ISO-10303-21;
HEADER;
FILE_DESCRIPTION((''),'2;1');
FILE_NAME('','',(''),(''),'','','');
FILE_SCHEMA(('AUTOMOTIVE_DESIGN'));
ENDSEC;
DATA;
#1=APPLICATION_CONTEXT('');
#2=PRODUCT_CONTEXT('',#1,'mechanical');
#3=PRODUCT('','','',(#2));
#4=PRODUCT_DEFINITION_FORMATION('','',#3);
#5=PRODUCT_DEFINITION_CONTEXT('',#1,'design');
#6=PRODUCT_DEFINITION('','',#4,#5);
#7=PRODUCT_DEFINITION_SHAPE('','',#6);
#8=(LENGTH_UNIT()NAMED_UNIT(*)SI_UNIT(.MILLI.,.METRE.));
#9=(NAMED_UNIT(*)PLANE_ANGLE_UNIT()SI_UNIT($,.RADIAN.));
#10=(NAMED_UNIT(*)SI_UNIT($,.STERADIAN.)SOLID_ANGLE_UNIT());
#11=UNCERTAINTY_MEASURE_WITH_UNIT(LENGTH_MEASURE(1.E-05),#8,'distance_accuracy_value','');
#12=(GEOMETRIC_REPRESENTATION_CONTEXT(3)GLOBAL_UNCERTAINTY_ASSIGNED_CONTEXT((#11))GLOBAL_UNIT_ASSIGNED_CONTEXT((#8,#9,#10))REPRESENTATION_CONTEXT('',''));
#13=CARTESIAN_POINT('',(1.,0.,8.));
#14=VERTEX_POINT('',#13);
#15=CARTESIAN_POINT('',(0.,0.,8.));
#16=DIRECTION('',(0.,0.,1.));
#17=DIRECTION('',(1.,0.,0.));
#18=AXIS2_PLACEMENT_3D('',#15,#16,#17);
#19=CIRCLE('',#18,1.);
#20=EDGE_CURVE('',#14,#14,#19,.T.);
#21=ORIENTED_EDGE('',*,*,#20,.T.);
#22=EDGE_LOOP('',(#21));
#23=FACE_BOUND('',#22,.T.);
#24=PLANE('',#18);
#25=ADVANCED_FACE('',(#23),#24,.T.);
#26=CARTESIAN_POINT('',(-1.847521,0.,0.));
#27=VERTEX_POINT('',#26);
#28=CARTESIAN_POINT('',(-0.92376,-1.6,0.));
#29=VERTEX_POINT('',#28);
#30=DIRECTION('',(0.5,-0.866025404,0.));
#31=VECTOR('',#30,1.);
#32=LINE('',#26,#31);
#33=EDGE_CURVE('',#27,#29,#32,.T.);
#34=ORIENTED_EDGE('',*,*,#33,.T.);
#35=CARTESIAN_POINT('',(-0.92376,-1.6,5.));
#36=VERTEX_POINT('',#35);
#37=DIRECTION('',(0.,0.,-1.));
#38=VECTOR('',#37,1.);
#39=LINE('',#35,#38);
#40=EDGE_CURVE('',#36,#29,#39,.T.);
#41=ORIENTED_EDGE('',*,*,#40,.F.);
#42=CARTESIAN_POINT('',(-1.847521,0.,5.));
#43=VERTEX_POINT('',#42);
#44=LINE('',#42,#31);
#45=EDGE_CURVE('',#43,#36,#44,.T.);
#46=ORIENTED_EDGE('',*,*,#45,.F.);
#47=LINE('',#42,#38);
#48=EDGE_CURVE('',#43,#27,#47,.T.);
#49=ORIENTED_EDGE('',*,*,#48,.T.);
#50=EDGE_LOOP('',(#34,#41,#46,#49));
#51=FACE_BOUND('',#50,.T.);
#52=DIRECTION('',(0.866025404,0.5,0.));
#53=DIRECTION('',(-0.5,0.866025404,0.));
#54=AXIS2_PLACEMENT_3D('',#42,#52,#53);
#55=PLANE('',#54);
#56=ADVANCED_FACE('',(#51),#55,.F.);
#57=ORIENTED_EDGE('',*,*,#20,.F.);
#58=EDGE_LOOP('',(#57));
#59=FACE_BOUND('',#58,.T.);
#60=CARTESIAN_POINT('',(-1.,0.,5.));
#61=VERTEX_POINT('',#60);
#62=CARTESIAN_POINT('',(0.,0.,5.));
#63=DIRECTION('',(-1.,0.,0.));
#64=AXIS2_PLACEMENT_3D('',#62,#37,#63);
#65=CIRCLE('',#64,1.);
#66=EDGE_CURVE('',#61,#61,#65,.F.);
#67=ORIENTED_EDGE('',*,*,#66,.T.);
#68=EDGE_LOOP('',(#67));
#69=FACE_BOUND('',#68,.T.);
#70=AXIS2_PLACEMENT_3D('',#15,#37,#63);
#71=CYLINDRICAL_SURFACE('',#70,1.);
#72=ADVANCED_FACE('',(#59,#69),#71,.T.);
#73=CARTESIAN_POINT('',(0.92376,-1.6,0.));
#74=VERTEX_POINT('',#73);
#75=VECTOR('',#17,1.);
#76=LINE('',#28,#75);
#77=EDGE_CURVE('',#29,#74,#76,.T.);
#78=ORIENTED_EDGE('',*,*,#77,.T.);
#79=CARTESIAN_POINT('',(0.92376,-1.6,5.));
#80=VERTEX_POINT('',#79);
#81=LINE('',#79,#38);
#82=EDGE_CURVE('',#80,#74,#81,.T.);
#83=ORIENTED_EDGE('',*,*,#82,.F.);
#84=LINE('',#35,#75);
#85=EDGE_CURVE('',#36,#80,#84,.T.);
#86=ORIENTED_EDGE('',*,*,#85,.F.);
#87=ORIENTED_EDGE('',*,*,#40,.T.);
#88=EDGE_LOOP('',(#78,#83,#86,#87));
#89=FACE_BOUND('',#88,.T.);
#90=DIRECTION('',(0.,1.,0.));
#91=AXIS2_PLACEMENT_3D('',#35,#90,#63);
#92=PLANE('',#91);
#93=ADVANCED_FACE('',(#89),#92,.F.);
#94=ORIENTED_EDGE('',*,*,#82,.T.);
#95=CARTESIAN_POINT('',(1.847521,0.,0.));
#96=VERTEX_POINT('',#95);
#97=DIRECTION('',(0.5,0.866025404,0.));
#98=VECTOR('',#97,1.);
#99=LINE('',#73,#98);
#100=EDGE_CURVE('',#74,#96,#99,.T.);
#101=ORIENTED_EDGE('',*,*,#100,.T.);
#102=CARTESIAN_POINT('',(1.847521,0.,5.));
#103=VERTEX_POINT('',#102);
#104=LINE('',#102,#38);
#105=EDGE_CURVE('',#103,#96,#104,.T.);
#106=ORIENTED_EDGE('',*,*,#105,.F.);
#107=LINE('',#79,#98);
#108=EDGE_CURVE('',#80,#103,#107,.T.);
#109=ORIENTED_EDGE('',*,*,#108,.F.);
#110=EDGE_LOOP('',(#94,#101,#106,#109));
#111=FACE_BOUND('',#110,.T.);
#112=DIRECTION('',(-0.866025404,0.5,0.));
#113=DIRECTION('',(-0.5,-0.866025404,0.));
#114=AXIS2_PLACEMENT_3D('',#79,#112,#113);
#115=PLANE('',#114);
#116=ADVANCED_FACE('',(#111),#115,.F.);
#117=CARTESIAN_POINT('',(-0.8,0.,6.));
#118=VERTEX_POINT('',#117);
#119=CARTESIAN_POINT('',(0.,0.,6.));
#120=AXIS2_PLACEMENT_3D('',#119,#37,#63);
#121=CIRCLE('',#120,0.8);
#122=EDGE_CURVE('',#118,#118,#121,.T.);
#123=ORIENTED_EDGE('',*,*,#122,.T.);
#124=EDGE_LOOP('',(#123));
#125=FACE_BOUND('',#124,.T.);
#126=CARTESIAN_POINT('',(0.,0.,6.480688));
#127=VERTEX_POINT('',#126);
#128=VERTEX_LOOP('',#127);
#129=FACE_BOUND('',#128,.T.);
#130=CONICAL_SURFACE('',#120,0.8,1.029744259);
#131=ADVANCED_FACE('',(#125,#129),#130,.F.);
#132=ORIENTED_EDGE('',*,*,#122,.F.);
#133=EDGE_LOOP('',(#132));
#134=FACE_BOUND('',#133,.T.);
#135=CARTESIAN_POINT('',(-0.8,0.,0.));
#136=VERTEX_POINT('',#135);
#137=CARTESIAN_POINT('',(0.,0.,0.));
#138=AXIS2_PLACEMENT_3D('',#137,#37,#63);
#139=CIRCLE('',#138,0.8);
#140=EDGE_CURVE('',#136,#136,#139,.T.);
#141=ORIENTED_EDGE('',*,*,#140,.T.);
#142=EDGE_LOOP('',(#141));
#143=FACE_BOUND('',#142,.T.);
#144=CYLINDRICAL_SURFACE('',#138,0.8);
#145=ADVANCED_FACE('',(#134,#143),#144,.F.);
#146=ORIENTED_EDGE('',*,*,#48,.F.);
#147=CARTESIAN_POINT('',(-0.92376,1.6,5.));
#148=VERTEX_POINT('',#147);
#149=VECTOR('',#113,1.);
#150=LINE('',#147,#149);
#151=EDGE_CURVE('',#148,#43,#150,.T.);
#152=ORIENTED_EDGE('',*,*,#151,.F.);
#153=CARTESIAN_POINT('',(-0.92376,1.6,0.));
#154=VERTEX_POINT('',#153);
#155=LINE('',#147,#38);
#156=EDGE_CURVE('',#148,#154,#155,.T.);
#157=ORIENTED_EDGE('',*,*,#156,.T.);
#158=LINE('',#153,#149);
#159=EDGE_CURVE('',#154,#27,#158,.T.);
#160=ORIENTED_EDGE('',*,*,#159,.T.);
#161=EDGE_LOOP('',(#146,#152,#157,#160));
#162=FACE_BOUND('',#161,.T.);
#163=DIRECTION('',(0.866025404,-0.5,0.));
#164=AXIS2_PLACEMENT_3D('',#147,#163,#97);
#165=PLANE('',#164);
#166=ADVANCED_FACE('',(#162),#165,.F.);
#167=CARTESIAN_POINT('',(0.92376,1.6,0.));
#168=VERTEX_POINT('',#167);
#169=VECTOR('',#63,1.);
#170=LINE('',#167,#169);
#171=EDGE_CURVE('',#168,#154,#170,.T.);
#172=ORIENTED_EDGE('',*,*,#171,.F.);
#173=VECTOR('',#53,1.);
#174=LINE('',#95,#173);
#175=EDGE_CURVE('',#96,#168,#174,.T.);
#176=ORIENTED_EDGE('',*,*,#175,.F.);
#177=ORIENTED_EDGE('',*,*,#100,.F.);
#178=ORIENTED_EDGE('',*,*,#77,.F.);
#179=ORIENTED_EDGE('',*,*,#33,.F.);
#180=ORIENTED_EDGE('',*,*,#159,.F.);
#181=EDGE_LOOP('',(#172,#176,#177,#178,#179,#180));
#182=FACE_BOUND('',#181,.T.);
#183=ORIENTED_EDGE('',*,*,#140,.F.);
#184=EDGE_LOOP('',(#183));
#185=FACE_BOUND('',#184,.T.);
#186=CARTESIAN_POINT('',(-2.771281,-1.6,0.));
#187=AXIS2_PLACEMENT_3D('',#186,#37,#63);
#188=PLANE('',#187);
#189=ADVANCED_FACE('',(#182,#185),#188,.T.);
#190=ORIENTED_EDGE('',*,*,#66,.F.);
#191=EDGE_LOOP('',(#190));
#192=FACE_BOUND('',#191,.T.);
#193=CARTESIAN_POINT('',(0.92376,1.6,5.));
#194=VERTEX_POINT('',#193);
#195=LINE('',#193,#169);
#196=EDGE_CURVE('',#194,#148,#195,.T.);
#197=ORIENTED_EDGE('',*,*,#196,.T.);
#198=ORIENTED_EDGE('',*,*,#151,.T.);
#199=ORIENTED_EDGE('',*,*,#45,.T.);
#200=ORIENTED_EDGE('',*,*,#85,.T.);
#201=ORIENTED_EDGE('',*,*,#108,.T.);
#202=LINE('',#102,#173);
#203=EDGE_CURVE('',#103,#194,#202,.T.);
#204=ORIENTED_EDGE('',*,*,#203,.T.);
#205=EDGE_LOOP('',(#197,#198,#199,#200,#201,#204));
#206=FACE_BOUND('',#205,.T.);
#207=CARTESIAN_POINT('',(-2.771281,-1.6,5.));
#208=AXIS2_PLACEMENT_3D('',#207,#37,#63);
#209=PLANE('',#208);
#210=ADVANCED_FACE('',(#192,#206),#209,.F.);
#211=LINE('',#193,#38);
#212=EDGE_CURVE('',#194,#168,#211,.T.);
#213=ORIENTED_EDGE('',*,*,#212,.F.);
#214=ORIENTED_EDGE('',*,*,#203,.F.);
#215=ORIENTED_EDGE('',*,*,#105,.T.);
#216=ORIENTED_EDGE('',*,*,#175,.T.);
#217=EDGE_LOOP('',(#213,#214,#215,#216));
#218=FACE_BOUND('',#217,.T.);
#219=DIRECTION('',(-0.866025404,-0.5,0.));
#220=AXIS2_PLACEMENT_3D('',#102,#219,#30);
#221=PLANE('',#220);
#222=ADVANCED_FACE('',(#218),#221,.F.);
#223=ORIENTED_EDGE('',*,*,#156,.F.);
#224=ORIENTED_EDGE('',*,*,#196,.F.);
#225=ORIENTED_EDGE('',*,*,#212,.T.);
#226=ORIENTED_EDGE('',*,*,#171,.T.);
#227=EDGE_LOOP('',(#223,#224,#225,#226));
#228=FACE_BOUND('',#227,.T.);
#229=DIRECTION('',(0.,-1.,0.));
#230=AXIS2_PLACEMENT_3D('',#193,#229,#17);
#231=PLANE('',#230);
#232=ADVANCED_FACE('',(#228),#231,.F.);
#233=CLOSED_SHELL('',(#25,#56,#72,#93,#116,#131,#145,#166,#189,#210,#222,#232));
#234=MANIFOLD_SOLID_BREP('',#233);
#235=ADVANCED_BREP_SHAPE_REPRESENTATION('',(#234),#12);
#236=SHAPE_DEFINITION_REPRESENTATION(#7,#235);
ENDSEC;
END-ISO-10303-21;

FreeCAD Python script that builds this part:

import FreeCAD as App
import Part
import Sketcher
Q = App.Units.Quantity


def add_polygon(sketch, points):
    """Adds a closed chain of lines whose ends are joined by coincident constraints."""
    first, n = sketch.GeometryCount, len(points)
    for a, b in zip(points, points[1:] + points[:1]):
        sketch.addGeometry(Part.LineSegment(App.Vector(*a, 0), App.Vector(*b, 0)), False)
    for i in range(n):
        sketch.addConstraint(Sketcher.Constraint("Coincident", first + i, 2, first + (i + 1) % n, 1))

doc = App.newDocument("Part")
body = doc.addObject("PartDesign::Body", "Body")

# Sketch on XY plane
sketch1 = body.newObject("Sketcher::SketchObject", "Sketch")
sketch1.AttachmentSupport = (doc.getObject("XY_Plane"), [""])
sketch1.MapMode = "FlatFace"
add_polygon(sketch1, [(0.9, -1.6), (1.8, 0), (0.9, 1.6), (-0.9, 1.6), (-1.8, 0), (-0.9, -1.6)])  # lines 0-5
sketch1.addConstraint(Sketcher.Constraint("Horizontal", 2))
sketch1.addConstraint(Sketcher.Constraint("Horizontal", 5))
sketch1.addConstraint(Sketcher.Constraint("Symmetric", 0, 2, 3, 2, -1, 1))
sketch1.addConstraint(Sketcher.Constraint("Symmetric", 1, 2, 4, 2, -1, 1))
sketch1.addConstraint(Sketcher.Constraint("PointOnObject", 0, 2, -1))
sketch1.addConstraint(Sketcher.Constraint("Parallel", 0, 3))
sketch1.addConstraint(Sketcher.Constraint("Vertical", 2, 2, 4, 2))
sketch1.addConstraint(Sketcher.Constraint("Angle", 0, Q("60 deg")))
sketch1.addConstraint(Sketcher.Constraint("DistanceY", -1, 1, 1, 2, 1.6))
sketch1.addConstraint(Sketcher.Constraint("DistanceX", 2, 2, 2, 1, 1.847521))
pad1 = body.newObject("PartDesign::Pad", "Pad")
pad1.Profile = sketch1
pad1.Length = 5

# Sketch on XY plane
sketch2 = body.newObject("Sketcher::SketchObject", "Sketch001")
sketch2.AttachmentSupport = (doc.getObject("XY_Plane"), [""])
sketch2.MapMode = "FlatFace"
sketch2.AttachmentOffset = App.Placement(App.Vector(0, 0, 5), App.Rotation())
sketch2.addGeometry(Part.Circle(App.Vector(0, 0, 0), App.Vector(0, 0, 1), 1), False)
sketch2.addConstraint(Sketcher.Constraint("Coincident", 0, 3, -1, 1))
sketch2.addConstraint(Sketcher.Constraint("Diameter", 0, 2.0))
pad2 = body.newObject("PartDesign::Pad", "Pad001")
pad2.Profile = sketch2
pad2.Length = 3

# Sketch on XY plane
sketch3 = body.newObject("Sketcher::SketchObject", "Sketch002")
sketch3.AttachmentSupport = (doc.getObject("XY_Plane"), [""])
sketch3.MapMode = "FlatFace"
sketch3.addGeometry(Part.Circle(App.Vector(0, 0, 0), App.Vector(0, 0, 1), 0.8), False)
sketch3.addConstraint(Sketcher.Constraint("Coincident", 0, 3, -1, 1))
sketch3.addConstraint(Sketcher.Constraint("Diameter", 0, 1.6))
doc.recompute()
hole = body.newObject("PartDesign::Hole", "Hole")
hole.Profile = sketch3
hole.ThreadType = "None"
hole.Diameter = 1.6
hole.DepthType = "Dimension"
hole.Depth = 6
hole.DrillPoint = "Angled"
hole.DrillPointAngle = 118
hole.Reversed = True

doc.recompute()
